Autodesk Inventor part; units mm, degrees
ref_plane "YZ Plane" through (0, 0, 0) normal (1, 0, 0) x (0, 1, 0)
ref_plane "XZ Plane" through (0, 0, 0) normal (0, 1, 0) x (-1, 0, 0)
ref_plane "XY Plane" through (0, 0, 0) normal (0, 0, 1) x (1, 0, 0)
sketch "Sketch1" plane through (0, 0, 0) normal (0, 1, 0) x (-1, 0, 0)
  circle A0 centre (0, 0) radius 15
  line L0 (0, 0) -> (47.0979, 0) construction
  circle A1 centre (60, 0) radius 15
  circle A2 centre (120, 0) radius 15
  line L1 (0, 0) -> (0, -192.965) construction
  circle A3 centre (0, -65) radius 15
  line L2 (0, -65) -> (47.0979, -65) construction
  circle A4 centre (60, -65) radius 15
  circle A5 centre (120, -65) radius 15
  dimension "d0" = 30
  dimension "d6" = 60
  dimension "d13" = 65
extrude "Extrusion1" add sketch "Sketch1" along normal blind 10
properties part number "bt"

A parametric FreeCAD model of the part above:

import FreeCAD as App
import Part
import Sketcher
from FreeCAD import Vector
Q = App.Units.Quantity

doc = App.newDocument("Part")
params = doc.addObject("Spreadsheet::Sheet", "Params")
for row, (alias, value) in enumerate([
    ("sketch1_diameter", "30 mm"),
    ("pad1_length", "10 mm"),
], start=1):
    params.set(f"A{row}", alias)
    params.set(f"B{row}", "=" + value)
    params.setAlias(f"B{row}", alias)

body = doc.addObject("PartDesign::Body", "Body")
body.AllowCompound = True

sketch1 = doc.addObject("Sketcher::SketchObject", "Sketch")
body.addObject(sketch1)
sketch1.AttachmentSupport = (doc.XZ_Plane, [""])
sketch1.MapMode = "FlatFace"
sketch1.addGeometry([
    Part.Circle(Vector(0, 0, 0), Vector(0, 0, 1), 15),
    Part.Circle(Vector(-60, 0, 0), Vector(0, 0, 1), 15),
    Part.Circle(Vector(-120, 0, 0), Vector(0, 0, 1), 15),
    Part.Circle(Vector(0, -65, 0), Vector(0, 0, 1), 15),
    Part.Circle(Vector(-60, -65, 0), Vector(0, 0, 1), 15),
    Part.Circle(Vector(-120, -65, 0), Vector(0, 0, 1), 15),
], False)
sketch1.addConstraint([
    Sketcher.Constraint("Coincident", 0, 3, -1, 1),
    Sketcher.Constraint("Equal", 0, 1),
    Sketcher.Constraint("Equal", 1, 2),
    Sketcher.Constraint("Equal", 2, 3),
    Sketcher.Constraint("Equal", 3, 4),
    Sketcher.Constraint("Equal", 4, 5),
    Sketcher.Constraint("PointOnObject", 1, 3, -1),
    Sketcher.Constraint("PointOnObject", 2, 3, -1),
    Sketcher.Constraint("PointOnObject", 3, 3, -2),
    Sketcher.Constraint("Horizontal", 3, 3, 4, 3),
    Sketcher.Constraint("Horizontal", 4, 3, 5, 3),
    Sketcher.Constraint("Vertical", 1, 3, 4, 3),
    Sketcher.Constraint("Vertical", 2, 3, 5, 3),
    Sketcher.Constraint("Diameter", 0, Q("30 mm")),
    Sketcher.Constraint("DistanceX", 1, 3, -1, 1, Q("60 mm")),
    Sketcher.Constraint("DistanceY", 3, 3, -1, 1, Q("65 mm")),
    Sketcher.Constraint("DistanceX", 2, 3, 1, 3, Q("60 mm")),
])
sketch1.setExpression("Constraints[13]", "Params.sketch1_diameter")
pad1 = doc.addObject("PartDesign::Pad", "Pad")
body.addObject(pad1)
pad1.Profile = sketch1
pad1.setExpression("Length", "Params.pad1_length")
pad1.Reversed = True

doc.recompute()
